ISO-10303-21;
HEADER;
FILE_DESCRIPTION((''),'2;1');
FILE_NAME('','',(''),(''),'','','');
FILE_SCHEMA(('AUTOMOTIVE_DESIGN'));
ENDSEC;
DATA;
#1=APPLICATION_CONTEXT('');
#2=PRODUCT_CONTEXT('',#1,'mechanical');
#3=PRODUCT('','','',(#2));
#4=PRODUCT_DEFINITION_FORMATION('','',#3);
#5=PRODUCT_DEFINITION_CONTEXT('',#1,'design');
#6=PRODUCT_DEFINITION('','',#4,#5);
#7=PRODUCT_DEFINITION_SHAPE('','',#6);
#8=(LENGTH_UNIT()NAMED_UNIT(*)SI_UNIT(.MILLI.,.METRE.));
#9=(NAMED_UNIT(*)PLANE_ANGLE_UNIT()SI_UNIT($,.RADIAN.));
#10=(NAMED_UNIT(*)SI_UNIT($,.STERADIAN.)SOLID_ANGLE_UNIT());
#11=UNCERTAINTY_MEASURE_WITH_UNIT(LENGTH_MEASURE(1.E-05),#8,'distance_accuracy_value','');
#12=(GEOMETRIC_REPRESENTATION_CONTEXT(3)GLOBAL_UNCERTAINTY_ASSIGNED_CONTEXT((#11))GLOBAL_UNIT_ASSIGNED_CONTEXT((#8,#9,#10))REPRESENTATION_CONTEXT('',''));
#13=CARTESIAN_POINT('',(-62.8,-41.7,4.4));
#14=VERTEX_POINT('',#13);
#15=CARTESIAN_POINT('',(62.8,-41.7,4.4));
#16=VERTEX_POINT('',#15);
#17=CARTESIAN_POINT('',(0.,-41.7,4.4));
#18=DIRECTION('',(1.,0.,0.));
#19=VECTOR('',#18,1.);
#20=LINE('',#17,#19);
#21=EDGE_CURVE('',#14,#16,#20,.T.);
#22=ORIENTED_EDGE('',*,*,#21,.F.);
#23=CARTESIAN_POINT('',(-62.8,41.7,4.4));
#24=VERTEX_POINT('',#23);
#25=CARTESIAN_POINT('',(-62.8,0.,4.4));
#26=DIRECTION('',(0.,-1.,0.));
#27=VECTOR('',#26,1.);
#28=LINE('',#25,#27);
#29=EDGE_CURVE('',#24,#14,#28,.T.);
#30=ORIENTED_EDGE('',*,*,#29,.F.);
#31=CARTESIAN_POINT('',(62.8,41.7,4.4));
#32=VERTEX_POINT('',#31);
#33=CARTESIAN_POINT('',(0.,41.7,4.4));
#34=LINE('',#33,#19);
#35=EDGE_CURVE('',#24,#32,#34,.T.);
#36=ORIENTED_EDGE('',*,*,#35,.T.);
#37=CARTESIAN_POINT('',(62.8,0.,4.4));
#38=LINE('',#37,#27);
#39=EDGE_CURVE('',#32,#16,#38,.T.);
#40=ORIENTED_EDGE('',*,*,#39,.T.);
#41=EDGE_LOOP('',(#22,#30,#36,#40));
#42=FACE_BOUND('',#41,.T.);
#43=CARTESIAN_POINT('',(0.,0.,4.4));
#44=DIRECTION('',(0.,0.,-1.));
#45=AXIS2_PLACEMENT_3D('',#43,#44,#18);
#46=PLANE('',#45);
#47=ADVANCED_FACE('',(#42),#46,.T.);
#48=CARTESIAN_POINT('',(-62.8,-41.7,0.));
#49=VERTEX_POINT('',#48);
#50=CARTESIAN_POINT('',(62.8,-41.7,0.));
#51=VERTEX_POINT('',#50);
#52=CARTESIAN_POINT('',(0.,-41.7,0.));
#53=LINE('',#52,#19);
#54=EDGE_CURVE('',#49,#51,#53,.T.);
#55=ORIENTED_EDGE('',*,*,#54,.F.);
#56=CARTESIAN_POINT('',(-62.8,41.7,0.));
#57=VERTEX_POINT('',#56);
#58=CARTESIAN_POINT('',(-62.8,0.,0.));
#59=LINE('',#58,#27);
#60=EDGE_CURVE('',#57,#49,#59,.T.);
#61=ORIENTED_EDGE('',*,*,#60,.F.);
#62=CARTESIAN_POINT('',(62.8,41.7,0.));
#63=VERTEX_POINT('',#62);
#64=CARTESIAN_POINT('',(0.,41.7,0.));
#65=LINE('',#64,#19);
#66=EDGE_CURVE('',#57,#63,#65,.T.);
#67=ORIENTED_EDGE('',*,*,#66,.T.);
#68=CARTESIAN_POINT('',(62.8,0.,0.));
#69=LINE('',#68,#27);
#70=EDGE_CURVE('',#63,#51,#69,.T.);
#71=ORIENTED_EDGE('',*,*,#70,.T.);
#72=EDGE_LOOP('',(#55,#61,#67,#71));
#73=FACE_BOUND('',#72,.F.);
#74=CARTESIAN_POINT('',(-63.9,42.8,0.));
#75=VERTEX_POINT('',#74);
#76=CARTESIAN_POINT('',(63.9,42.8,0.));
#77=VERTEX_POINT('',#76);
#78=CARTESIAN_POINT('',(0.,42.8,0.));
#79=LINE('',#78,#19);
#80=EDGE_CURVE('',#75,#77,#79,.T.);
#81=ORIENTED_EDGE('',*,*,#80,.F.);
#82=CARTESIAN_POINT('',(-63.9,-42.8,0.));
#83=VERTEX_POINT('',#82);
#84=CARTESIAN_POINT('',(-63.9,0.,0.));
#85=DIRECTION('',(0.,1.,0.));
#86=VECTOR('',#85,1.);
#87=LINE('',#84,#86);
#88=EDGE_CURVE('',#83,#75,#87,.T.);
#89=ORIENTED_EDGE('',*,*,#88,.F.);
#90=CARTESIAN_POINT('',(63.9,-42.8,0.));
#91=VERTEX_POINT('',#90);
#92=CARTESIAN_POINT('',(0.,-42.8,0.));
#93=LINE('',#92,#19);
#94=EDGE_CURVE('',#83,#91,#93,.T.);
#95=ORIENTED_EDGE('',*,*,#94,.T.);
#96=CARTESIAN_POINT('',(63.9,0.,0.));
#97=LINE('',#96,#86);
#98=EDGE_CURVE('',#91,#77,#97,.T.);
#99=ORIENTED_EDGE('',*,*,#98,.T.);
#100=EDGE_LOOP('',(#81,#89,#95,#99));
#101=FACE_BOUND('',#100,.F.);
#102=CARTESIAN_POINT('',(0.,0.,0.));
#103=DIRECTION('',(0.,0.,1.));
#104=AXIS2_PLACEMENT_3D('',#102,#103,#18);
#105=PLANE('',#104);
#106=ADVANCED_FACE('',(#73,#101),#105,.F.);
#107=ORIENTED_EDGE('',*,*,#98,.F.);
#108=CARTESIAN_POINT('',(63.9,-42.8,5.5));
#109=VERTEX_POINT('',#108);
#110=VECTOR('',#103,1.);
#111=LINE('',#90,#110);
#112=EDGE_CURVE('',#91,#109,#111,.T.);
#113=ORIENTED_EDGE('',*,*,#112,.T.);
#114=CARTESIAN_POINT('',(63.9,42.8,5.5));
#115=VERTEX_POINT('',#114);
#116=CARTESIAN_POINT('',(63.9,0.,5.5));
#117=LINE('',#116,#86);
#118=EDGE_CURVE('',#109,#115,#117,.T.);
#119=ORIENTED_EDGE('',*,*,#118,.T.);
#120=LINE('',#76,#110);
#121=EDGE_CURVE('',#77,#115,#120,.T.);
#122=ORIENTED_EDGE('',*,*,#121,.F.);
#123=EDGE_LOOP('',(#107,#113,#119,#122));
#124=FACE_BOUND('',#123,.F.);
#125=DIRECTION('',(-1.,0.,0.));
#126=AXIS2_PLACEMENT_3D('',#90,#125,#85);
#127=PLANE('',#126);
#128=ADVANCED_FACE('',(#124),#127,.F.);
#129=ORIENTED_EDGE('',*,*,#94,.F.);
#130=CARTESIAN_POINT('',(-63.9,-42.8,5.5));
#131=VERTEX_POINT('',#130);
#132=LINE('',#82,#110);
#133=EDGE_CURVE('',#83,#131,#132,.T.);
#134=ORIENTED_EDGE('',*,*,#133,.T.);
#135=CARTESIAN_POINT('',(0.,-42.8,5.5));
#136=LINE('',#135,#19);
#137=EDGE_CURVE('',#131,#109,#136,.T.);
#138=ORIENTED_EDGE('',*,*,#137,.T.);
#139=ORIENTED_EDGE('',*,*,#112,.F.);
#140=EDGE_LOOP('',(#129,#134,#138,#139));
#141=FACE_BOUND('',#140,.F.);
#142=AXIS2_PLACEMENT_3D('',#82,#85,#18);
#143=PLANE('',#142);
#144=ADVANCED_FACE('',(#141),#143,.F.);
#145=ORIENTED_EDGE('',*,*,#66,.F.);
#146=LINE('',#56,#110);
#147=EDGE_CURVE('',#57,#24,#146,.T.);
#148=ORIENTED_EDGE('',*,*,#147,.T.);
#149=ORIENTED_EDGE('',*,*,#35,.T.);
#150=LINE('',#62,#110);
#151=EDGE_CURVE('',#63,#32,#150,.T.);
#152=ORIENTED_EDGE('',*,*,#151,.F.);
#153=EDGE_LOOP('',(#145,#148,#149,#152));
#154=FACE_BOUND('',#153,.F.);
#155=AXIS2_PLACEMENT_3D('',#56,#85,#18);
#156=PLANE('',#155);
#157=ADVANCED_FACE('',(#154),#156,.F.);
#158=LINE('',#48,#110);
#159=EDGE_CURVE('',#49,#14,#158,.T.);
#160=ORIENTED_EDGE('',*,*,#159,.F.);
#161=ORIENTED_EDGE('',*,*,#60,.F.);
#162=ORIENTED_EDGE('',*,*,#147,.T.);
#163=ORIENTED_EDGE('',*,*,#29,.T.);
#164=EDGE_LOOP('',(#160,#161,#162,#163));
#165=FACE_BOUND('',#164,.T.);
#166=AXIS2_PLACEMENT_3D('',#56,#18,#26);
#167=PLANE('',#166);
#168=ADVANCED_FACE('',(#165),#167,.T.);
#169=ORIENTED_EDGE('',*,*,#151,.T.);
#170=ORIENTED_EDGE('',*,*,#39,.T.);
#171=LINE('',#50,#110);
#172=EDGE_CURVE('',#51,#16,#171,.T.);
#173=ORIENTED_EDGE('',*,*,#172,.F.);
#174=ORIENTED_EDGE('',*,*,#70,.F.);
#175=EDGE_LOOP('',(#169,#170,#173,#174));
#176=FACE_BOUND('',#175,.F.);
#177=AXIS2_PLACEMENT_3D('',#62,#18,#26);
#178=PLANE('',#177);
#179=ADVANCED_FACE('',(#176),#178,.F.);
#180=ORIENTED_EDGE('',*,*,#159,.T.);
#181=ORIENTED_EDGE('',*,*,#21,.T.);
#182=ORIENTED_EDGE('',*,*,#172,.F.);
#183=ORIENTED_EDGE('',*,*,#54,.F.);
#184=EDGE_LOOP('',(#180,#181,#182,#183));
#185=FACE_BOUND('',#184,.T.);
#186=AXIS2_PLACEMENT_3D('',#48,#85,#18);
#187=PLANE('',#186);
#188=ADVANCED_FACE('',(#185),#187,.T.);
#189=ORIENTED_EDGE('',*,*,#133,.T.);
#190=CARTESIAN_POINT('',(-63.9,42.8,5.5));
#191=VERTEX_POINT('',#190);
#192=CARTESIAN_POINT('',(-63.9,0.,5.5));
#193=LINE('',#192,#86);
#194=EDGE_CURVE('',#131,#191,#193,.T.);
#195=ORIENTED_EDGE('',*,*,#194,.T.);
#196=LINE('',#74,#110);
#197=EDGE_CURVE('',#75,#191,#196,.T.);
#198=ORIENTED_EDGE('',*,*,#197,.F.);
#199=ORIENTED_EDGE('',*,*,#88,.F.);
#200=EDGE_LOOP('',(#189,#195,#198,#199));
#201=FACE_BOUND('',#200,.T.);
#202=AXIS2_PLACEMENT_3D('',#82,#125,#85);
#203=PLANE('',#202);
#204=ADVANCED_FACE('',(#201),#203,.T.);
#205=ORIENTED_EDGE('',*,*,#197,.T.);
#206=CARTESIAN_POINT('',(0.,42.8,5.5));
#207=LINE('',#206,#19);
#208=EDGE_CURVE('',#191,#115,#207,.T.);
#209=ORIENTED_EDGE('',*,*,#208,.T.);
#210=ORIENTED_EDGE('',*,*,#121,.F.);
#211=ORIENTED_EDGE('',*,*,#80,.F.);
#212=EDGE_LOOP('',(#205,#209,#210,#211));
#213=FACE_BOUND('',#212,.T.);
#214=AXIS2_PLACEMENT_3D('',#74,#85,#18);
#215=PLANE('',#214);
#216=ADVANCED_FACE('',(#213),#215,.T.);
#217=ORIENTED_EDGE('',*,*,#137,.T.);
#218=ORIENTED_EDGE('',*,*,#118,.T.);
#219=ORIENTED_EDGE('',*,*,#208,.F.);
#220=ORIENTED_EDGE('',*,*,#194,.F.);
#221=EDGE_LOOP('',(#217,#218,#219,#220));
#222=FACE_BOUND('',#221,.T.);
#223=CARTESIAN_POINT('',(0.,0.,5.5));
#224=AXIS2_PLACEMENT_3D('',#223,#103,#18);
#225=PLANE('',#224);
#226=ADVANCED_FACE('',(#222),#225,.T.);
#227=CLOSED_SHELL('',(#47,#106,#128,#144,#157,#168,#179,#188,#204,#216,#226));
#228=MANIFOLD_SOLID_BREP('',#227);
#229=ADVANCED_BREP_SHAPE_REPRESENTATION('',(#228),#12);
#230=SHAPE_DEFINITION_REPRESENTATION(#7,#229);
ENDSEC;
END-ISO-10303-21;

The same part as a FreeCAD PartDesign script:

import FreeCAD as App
import Part
import Sketcher
from FreeCAD import Vector
Q = App.Units.Quantity


def add_polygon(sketch, points):
    """Adds a closed chain of lines whose ends are joined by coincident constraints."""
    first, n = sketch.GeometryCount, len(points)
    for a, b in zip(points, points[1:] + points[:1]):
        sketch.addGeometry(Part.LineSegment(App.Vector(*a, 0), App.Vector(*b, 0)), False)
    for i in range(n):
        sketch.addConstraint(Sketcher.Constraint("Coincident", first + i, 2, first + (i + 1) % n, 1))

doc = App.newDocument("Part")
body = doc.addObject("PartDesign::Body", "Body")

# Sketch on XY plane
sketch1 = doc.addObject("Sketcher::SketchObject", "Sketch")
body.addObject(sketch1)
sketch1.AttachmentSupport = (doc.XY_Plane, [""])
sketch1.MapMode = "FlatFace"
add_polygon(sketch1, [(-64, 43), (-64, -43), (64, -43), (64, 43)])  # lines 0-3
sketch1.addConstraint([
    Sketcher.Constraint("Vertical", 0),
    Sketcher.Constraint("Horizontal", 1),
    Sketcher.Constraint("Vertical", 2),
    Sketcher.Constraint("Horizontal", 3),
    Sketcher.Constraint("Symmetric", 0, 2, 2, 2, -1, 1),
    Sketcher.Constraint("DistanceX", 1, 1, 1, 2, Q("127.8 mm")),
    Sketcher.Constraint("DistanceY", 0, 2, 0, 1, Q("85.6 mm")),
])
pad1 = doc.addObject("PartDesign::Pad", "Pad")
body.addObject(pad1)
pad1.Profile = sketch1
pad1.Length = 5.5

# Sketch on XY plane
sketch2 = doc.addObject("Sketcher::SketchObject", "Sketch001")
body.addObject(sketch2)
sketch2.AttachmentSupport = (doc.XY_Plane, [""])
sketch2.MapMode = "FlatFace"
add_polygon(sketch2, [(-63, -42), (-63, 42), (63, 42), (63, -42)])  # lines 0-3
sketch2.addConstraint([
    Sketcher.Constraint("Vertical", 0),
    Sketcher.Constraint("Horizontal", 1),
    Sketcher.Constraint("Vertical", 2),
    Sketcher.Constraint("Horizontal", 3),
    Sketcher.Constraint("Symmetric", 0, 2, 2, 2, -1, 1),
    Sketcher.Constraint("DistanceX", 1, 1, 1, 2, Q("125.6 mm")),
    Sketcher.Constraint("DistanceY", 0, 1, 0, 2, Q("83.4 mm")),
])
pocket1 = doc.addObject("PartDesign::Pocket", "Pocket")
body.addObject(pocket1)
pocket1.Profile = sketch2
pocket1.Length = 4.4
pocket1.Reversed = True

doc.recompute()
